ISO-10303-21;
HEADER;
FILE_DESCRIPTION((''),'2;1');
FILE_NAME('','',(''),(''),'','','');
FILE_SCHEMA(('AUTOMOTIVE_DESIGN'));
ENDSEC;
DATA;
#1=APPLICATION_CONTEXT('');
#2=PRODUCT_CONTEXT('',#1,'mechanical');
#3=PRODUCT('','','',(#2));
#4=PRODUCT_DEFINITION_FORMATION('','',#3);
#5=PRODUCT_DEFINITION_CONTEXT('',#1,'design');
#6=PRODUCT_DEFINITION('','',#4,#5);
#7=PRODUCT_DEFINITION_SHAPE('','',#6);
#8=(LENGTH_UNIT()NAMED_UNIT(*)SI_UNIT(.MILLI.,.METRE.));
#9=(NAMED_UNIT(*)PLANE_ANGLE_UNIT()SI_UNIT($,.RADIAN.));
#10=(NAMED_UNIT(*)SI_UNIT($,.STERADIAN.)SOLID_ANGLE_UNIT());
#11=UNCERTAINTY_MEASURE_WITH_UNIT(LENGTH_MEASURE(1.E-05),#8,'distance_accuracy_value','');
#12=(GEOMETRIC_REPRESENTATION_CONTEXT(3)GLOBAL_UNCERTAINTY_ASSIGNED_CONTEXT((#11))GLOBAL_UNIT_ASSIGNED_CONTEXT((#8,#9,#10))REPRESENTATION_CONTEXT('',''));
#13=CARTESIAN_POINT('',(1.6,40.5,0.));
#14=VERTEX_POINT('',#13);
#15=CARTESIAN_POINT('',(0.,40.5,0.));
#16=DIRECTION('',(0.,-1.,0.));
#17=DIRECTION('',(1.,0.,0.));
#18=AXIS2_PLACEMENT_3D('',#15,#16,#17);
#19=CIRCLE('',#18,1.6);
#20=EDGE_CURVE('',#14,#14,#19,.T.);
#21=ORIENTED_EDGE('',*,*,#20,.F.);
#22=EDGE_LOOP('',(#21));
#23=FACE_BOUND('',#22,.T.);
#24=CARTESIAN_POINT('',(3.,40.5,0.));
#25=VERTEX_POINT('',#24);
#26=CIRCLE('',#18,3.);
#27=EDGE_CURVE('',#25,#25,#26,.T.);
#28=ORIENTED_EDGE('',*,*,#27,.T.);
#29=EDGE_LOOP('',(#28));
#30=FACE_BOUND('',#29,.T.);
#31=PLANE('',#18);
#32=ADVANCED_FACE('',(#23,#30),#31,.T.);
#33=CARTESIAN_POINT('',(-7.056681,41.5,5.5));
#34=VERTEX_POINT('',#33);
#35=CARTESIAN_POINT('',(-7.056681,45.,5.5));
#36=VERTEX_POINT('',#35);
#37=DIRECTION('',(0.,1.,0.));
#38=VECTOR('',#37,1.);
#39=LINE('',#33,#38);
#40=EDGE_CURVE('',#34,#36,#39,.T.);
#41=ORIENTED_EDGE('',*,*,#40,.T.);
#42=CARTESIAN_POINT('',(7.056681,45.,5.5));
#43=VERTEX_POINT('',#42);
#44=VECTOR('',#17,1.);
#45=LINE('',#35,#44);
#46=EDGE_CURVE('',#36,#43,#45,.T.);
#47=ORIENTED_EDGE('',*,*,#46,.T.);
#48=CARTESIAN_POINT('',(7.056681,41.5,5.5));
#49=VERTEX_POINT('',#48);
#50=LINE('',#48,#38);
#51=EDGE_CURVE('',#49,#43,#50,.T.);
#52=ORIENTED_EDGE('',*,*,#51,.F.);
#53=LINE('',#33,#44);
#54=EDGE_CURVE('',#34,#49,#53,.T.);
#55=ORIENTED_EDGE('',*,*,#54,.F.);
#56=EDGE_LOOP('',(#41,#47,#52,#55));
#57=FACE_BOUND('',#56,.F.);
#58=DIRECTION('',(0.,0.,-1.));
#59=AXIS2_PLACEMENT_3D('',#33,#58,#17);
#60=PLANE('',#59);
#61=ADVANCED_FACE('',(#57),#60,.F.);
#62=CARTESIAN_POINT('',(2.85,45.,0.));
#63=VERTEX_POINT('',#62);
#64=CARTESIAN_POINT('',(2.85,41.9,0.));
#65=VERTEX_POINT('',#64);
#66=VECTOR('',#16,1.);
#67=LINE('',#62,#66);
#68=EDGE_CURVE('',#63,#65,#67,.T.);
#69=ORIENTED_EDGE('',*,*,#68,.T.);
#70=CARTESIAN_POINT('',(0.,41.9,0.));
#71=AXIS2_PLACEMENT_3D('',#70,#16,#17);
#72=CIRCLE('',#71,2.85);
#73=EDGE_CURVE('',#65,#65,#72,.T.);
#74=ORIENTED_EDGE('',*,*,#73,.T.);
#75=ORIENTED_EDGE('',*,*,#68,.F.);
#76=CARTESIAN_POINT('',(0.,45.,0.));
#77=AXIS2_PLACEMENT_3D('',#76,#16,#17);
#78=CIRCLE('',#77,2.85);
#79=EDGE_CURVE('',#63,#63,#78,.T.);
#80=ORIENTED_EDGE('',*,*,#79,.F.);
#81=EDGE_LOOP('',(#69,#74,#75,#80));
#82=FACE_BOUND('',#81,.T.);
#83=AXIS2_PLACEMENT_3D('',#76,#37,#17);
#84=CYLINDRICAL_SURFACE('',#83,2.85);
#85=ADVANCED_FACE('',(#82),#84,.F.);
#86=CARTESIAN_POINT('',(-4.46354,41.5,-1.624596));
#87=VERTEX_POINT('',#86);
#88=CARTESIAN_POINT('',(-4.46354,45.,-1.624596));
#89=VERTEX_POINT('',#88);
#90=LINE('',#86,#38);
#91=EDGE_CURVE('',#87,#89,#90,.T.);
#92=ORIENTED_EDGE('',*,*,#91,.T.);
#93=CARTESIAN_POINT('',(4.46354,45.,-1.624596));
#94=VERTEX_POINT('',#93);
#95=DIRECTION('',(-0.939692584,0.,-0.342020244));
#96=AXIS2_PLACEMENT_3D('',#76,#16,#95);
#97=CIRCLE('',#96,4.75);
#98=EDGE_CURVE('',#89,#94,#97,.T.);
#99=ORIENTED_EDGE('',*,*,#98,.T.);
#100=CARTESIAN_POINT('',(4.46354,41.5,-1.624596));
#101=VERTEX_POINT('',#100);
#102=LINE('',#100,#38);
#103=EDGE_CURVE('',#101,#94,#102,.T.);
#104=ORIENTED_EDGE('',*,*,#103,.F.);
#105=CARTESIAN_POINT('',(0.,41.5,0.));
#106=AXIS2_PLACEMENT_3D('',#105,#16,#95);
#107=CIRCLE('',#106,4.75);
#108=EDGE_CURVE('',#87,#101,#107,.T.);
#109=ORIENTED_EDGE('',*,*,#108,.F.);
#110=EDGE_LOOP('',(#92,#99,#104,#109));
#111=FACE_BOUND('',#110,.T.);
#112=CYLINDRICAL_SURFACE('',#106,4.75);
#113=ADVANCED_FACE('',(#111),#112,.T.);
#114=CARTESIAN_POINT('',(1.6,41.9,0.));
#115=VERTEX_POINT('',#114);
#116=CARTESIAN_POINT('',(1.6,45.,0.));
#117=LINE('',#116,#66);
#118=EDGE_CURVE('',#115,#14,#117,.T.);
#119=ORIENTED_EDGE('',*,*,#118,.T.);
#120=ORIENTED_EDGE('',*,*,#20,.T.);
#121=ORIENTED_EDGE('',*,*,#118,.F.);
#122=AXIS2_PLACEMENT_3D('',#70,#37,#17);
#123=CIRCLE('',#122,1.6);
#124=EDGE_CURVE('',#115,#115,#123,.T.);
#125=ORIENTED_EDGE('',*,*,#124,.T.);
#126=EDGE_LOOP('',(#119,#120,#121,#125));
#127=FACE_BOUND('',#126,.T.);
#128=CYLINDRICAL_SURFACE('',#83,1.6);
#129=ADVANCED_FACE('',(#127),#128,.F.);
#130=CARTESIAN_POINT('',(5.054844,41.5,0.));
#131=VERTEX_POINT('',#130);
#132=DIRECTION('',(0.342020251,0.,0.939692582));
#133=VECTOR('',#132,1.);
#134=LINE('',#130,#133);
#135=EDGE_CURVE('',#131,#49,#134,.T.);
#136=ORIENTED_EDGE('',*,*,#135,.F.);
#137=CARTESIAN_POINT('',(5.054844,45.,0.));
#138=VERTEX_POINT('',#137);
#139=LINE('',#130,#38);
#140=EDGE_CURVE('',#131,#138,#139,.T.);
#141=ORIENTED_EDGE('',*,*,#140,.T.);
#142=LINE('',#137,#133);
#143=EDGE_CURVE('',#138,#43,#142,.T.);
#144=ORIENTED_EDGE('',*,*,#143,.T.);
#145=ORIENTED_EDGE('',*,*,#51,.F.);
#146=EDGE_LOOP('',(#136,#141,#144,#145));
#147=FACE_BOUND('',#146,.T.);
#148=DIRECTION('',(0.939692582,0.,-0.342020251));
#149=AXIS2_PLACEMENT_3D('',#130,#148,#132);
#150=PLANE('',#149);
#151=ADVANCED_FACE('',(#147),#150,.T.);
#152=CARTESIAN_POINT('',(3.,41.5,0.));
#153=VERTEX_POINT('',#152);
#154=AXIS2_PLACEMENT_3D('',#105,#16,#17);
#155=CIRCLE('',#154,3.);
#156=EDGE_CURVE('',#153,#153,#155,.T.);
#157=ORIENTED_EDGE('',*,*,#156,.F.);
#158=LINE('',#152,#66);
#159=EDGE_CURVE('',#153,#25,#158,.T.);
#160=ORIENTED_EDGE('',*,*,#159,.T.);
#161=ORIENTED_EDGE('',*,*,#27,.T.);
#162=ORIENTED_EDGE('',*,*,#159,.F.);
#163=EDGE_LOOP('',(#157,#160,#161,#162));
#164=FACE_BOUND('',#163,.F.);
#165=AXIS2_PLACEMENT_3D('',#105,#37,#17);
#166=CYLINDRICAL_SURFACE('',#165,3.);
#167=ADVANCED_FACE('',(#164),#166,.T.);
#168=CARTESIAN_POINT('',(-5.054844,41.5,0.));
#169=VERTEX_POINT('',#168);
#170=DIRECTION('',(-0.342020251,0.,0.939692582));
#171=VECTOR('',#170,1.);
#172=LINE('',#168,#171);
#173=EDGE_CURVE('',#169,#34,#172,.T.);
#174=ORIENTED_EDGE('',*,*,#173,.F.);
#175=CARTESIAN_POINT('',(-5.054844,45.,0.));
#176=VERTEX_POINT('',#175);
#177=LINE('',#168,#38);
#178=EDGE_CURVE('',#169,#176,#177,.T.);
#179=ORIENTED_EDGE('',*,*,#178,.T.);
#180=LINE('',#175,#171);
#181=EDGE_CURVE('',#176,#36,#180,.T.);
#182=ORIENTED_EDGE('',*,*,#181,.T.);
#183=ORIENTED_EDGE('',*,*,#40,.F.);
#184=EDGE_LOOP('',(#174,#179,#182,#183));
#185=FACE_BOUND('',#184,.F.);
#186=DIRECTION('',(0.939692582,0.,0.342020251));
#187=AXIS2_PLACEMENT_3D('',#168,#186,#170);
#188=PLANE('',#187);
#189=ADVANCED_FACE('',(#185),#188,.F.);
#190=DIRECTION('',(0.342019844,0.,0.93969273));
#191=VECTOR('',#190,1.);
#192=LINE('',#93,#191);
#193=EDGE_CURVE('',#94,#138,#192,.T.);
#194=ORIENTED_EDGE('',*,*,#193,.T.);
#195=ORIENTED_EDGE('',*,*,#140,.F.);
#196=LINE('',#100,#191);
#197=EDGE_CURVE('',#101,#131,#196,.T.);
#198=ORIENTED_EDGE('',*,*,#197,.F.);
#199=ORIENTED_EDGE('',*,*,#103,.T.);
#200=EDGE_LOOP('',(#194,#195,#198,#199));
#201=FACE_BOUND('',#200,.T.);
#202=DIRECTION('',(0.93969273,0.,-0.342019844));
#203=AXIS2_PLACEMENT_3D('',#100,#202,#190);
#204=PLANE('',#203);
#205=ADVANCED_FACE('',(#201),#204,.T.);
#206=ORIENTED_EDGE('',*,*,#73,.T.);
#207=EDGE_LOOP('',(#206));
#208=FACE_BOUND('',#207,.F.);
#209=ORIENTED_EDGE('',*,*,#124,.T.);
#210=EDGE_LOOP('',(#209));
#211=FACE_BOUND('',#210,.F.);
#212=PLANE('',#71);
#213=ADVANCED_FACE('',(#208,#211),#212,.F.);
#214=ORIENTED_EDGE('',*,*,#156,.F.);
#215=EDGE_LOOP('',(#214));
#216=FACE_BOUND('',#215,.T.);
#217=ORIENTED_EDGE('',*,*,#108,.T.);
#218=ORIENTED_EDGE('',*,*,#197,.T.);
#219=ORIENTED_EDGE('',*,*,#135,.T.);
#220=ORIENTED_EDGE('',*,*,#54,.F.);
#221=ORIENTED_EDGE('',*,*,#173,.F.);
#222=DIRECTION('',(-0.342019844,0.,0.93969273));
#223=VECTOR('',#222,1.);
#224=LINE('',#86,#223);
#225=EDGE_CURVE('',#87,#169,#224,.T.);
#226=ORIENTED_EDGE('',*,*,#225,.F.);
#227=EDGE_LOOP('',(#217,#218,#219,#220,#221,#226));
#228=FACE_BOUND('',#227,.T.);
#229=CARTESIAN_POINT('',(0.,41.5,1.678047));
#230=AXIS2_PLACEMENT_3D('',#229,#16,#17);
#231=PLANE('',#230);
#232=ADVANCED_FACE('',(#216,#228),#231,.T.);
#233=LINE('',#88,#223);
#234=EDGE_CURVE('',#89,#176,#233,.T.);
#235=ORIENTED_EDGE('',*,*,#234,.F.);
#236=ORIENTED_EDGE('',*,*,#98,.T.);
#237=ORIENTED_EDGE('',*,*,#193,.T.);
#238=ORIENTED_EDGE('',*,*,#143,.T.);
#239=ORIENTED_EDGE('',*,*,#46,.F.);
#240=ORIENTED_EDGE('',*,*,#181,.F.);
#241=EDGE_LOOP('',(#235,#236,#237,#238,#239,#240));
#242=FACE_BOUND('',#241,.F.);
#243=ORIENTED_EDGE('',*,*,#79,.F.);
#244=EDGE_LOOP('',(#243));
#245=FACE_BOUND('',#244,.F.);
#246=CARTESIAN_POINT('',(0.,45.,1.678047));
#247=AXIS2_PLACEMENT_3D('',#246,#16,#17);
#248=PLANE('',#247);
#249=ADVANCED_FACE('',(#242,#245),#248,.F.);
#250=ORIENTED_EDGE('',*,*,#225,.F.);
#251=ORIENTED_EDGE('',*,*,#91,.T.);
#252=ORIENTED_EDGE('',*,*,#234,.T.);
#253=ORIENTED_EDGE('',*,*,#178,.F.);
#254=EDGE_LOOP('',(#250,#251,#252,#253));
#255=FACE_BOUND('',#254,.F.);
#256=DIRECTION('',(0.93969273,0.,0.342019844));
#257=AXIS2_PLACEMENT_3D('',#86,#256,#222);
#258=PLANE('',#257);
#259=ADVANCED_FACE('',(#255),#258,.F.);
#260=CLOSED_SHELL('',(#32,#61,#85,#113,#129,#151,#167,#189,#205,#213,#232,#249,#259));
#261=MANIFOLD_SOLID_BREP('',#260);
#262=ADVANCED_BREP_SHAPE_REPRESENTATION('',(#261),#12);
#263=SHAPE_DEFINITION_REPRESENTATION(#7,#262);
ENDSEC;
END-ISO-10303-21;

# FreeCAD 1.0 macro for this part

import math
import FreeCAD as App
import Part
import Sketcher
from FreeCAD import Vector
Q = App.Units.Quantity

doc = App.newDocument("Part")
body = doc.addObject("PartDesign::Body", "Body")

# Sketch on XZ plane
sketch1 = body.newObject("Sketcher::SketchObject", "Sketch")
sketch1.AttachmentSupport = (doc.getObject("XZ_Plane"), [""])
sketch1.MapMode = "FlatFace"
sketch1.addGeometry(Part.Circle(Vector(0, 0, 0), Vector(0, 0, 1), 2.85), False)
sketch1.addConstraint(Sketcher.Constraint("Coincident", 0, 3, -1, 1))
sketch1.addConstraint(Sketcher.Constraint("Diameter", 0, 5.7))
pad1 = body.newObject("PartDesign::Pad", "Pad")
pad1.Profile = sketch1
pad1.Length = 3.1
body2 = doc.addObject("PartDesign::Body", "Body001")

# Sketch on XZ plane
sketch2 = body2.newObject("Sketcher::SketchObject", "Sketch001")
sketch2.AttachmentSupport = (doc.getObject("XZ_Plane001"), [""])
sketch2.MapMode = "FlatFace"
sketch2.addGeometry(Part.Circle(Vector(0, 0, 0), Vector(0, 0, 1), 1.6), False)
sketch2.addConstraint(Sketcher.Constraint("Coincident", 0, 3, -1, 1))
sketch2.addConstraint(Sketcher.Constraint("Diameter", 0, 3.2))
pad2 = body2.newObject("PartDesign::Pad", "Pad001")
pad2.Profile = sketch2
pad2.Length = 4.5
doc.recompute()

boolean = body2.newObject("PartDesign::Boolean", "Boolean")
boolean.Type = "Fuse"
boolean.addObjects([body])
body3 = doc.addObject("PartDesign::Body", "Body002")
doc.recompute()

body2.Placement = App.Placement(Vector(0, 3.5, 0), App.Rotation(Vector(0, 0, 1), 0))
boolean2 = body3.newObject("PartDesign::Boolean", "Boolean001")
boolean2.Type = "Fuse"
boolean2.addObjects([body2])
body4 = doc.addObject("PartDesign::Body", "Body003")

# Sketch on XZ plane
sketch3 = body4.newObject("Sketcher::SketchObject", "Sketch002")
sketch3.AttachmentSupport = (doc.getObject("XZ_Plane003"), [""])
sketch3.MapMode = "FlatFace"
sketch3.addGeometry(Part.Circle(Vector(0, 0, 0), Vector(0, 0, 1), 3), False)
sketch3.addConstraint(Sketcher.Constraint("Coincident", 0, 3, -1, 1))
sketch3.addConstraint(Sketcher.Constraint("Diameter", 0, 6.0))
pad3 = body4.newObject("PartDesign::Pad", "Pad002")
pad3.Profile = sketch3
pad3.Length = 1
body5 = doc.addObject("PartDesign::Body", "Body004")

# Sketch on XZ plane
sketch4 = body5.newObject("Sketcher::SketchObject", "Sketch003")
sketch4.AttachmentSupport = (doc.getObject("XZ_Plane004"), [""])
sketch4.MapMode = "FlatFace"
sketch4.addGeometry(Part.ArcOfCircle(Part.Circle(Vector(0, 0, 0), Vector(0, 0, 1), 4.75), math.radians(-159.999994), math.radians(-20.000006)), False)
sketch4.addGeometry(Part.LineSegment(Vector(4.46354, -1.624596, 0), Vector(5.054844, 0, 0)), False)
sketch4.addGeometry(Part.LineSegment(Vector(5.054844, 0, 0), Vector(7.056681, 5.5, 0)), False)
sketch4.addGeometry(Part.LineSegment(Vector(7.056681, 5.5, 0), Vector(-7.056681, 5.5, 0)), False)
sketch4.addGeometry(Part.LineSegment(Vector(-7.056681, 5.5, 0), Vector(-5.054844, 0, 0)), False)
sketch4.addGeometry(Part.LineSegment(Vector(-5.054844, 0, 0), Vector(-4.46354, -1.624596, 0)), False)
sketch4.addConstraint(Sketcher.Constraint("Tangent", 0, 2, 1, 1))
sketch4.addConstraint(Sketcher.Constraint("Coincident", 1, 2, 2, 1))
sketch4.addConstraint(Sketcher.Constraint("Coincident", 2, 2, 3, 1))
sketch4.addConstraint(Sketcher.Constraint("Coincident", 3, 2, 4, 1))
sketch4.addConstraint(Sketcher.Constraint("Coincident", 4, 2, 5, 1))
sketch4.addConstraint(Sketcher.Constraint("Tangent", 5, 2, 0, 1))
sketch4.addConstraint(Sketcher.Constraint("Horizontal", 3))
sketch4.addConstraint(Sketcher.Constraint("Coincident", 0, 3, -1, 1))
sketch4.addConstraint(Sketcher.Constraint("Symmetric", 1, 2, 4, 2, -1, 1))
sketch4.addConstraint(Sketcher.Constraint("PointOnObject", 1, 2, -1))
sketch4.addConstraint(Sketcher.Constraint("Parallel", 1, 2))
sketch4.addConstraint(Sketcher.Constraint("Parallel", 4, 5))
sketch4.addConstraint(Sketcher.Constraint("Angle", 1, Q("70.000018 deg")))
sketch4.addConstraint(Sketcher.Constraint("Radius", 0, 4.75))
sketch4.addConstraint(Sketcher.Constraint("DistanceY", -1, 1, 2, 2, 5.5))
pad4 = body5.newObject("PartDesign::Pad", "Pad003")
pad4.Profile = sketch4
pad4.Length = 3.5
pad4.Reversed = True
doc.recompute()

boolean3 = body5.newObject("PartDesign::Boolean", "Boolean002")
boolean3.Type = "Fuse"
boolean3.addObjects([body4])
doc.recompute()

boolean4 = body5.newObject("PartDesign::Boolean", "Boolean003")
boolean4.Type = "Cut"
boolean4.addObjects([body3])
body6 = doc.addObject("PartDesign::Body", "Body005")
doc.recompute()

body5.Placement = App.Placement(Vector(0, 41.5, 0), App.Rotation(Vector(0, 0, 1), 0))
boolean5 = body6.newObject("PartDesign::Boolean", "Boolean004")
boolean5.Type = "Fuse"
boolean5.addObjects([body5])

doc.recompute()
